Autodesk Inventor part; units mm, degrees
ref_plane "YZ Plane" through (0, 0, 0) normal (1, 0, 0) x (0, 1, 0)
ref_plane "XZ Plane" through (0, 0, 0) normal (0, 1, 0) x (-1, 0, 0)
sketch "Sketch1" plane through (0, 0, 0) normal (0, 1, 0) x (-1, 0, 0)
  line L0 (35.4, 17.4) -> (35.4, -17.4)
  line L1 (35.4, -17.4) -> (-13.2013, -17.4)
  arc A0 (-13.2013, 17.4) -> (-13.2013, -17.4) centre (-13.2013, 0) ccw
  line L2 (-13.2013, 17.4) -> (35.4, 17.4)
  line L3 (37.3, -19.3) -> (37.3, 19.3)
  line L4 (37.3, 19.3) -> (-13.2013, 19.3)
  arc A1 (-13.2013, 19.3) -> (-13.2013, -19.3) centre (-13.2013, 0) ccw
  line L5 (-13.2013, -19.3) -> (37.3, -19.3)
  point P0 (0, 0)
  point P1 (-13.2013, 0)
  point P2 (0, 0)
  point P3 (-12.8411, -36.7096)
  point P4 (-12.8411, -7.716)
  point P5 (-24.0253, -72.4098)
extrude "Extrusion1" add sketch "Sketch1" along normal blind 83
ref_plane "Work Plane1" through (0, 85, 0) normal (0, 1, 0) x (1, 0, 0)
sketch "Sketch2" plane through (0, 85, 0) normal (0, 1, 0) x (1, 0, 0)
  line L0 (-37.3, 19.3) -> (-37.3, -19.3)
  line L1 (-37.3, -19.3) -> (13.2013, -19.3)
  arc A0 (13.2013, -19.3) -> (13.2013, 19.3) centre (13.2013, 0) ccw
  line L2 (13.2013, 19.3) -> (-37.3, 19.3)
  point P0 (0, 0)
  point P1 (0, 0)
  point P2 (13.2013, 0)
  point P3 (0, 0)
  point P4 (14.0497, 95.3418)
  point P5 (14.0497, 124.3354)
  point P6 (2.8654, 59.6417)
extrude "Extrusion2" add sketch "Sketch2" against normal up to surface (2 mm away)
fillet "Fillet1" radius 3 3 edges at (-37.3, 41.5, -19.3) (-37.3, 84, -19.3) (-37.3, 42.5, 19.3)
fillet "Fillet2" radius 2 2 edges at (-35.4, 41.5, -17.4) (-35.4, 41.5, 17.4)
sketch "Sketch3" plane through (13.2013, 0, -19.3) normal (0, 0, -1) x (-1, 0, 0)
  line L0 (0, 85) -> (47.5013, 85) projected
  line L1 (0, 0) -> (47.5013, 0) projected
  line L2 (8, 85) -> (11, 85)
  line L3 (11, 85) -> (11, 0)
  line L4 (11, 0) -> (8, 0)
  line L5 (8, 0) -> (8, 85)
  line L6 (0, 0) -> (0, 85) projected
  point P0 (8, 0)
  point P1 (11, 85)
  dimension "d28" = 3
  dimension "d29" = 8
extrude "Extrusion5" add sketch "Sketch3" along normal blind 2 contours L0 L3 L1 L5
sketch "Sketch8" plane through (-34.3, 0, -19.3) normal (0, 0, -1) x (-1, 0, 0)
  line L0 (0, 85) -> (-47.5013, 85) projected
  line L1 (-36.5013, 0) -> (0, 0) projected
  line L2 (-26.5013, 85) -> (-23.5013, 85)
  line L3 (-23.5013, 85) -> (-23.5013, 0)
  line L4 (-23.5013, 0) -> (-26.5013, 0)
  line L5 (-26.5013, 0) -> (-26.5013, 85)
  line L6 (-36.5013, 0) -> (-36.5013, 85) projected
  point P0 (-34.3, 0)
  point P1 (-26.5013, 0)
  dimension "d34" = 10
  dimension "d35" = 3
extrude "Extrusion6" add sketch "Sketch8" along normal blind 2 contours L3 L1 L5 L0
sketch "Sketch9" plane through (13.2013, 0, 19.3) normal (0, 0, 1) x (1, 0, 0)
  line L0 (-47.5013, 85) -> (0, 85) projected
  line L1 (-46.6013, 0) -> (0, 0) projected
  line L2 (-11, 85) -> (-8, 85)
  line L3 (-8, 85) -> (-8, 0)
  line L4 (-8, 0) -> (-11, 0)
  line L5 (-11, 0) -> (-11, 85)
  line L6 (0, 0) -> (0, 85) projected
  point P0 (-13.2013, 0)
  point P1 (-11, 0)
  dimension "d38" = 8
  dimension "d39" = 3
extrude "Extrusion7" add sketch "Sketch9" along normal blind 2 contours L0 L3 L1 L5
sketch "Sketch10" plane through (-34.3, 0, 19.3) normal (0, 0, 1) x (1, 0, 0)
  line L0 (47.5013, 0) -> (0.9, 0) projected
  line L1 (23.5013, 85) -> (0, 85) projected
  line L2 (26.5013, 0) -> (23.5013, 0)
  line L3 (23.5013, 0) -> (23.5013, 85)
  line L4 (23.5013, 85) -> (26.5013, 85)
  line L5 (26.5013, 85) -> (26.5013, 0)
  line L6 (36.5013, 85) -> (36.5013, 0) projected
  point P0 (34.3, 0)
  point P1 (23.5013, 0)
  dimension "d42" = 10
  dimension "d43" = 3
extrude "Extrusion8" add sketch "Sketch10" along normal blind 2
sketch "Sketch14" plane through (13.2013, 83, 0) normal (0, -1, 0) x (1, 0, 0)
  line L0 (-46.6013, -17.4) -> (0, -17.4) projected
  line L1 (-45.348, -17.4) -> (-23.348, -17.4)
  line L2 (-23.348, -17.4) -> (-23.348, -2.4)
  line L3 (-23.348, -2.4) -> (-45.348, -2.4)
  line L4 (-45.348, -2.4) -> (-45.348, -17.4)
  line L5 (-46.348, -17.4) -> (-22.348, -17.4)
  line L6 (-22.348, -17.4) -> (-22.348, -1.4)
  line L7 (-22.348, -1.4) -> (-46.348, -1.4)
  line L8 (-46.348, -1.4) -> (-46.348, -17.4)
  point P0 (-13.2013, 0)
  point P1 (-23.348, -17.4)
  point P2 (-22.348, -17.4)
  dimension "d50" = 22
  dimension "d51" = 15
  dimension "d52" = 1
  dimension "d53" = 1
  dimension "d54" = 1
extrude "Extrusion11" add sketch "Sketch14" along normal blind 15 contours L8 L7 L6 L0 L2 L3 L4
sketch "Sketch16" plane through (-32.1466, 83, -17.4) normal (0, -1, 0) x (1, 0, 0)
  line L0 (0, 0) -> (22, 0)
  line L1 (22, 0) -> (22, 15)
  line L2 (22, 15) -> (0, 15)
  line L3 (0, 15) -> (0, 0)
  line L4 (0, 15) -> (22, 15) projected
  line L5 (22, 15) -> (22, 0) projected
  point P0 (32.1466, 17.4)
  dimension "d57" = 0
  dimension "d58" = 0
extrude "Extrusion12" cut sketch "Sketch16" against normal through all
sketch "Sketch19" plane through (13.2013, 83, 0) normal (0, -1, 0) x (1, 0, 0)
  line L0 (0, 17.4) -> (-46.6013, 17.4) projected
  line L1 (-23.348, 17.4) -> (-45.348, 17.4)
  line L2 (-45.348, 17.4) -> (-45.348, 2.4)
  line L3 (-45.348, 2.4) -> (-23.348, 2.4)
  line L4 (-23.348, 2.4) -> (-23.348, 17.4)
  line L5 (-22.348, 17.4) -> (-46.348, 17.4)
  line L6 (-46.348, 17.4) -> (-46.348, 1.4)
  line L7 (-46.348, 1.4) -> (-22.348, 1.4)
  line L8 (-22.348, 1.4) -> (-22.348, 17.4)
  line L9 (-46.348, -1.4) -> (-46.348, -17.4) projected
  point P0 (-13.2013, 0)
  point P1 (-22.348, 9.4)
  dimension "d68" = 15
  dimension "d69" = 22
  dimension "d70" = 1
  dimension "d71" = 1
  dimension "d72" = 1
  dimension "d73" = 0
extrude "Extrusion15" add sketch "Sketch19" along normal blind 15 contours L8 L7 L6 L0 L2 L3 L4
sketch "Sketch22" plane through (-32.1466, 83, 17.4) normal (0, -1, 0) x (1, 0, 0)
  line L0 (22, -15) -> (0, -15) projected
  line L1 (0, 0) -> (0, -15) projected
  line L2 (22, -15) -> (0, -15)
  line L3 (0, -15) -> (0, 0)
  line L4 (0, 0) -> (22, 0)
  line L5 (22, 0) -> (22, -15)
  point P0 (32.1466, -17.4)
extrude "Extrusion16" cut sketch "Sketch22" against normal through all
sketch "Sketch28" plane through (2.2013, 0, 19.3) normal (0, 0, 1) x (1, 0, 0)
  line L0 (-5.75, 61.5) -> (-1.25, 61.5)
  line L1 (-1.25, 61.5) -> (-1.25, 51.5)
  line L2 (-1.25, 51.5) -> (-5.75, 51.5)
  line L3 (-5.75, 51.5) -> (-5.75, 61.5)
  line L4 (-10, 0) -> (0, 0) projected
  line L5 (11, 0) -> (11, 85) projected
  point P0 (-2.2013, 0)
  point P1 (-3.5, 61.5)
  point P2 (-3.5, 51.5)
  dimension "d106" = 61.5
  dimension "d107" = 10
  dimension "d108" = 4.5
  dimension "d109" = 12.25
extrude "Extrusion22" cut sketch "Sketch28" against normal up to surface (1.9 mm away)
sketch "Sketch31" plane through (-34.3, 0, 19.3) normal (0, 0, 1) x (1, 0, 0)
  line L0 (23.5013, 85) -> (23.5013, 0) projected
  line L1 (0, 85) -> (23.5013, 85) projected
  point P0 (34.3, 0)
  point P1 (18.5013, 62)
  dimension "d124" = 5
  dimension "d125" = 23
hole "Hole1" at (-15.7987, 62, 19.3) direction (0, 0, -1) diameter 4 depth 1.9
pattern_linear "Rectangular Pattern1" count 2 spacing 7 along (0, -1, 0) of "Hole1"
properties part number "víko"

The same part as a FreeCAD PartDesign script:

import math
import FreeCAD as App
import Part
import Sketcher
from FreeCAD import Vector


def edges_at(feature, points):
    """Names of the edges that pass closest to the given points."""
    edges = feature.Shape.Edges
    near = lambda p: min(range(len(edges)), key=lambda i: edges[i].distToShape(Part.Vertex(*p))[0])
    return sorted({f"Edge{near(p) + 1}" for p in points})


def add_polygon(sketch, points):
    """Adds a closed chain of lines whose ends are joined by coincident constraints."""
    first, n = sketch.GeometryCount, len(points)
    for a, b in zip(points, points[1:] + points[:1]):
        sketch.addGeometry(Part.LineSegment(App.Vector(*a, 0), App.Vector(*b, 0)), False)
    for i in range(n):
        sketch.addConstraint(Sketcher.Constraint("Coincident", first + i, 2, first + (i + 1) % n, 1))

doc = App.newDocument("Part")
body = doc.addObject("PartDesign::Body", "Body")

sketch1 = body.newObject("Sketcher::SketchObject", "Sketch")
sketch1.AttachmentSupport = (doc.getObject("XZ_Plane"), [""])
sketch1.MapMode = "FlatFace"
sketch1.addGeometry([
    Part.LineSegment(Vector(13.2013, -19.3, 0), Vector(-37.3, -19.3, 0)),
    Part.LineSegment(Vector(-37.3, -19.3, 0), Vector(-37.3, 19.3, 0)),
    Part.LineSegment(Vector(-37.3, 19.3, 0), Vector(13.2013, 19.3, 0)),
    Part.ArcOfCircle(Part.Circle(Vector(13.2013, 0, 0), Vector(0, 0, 1), 19.3), math.radians(-90), math.radians(90)),
    Part.LineSegment(Vector(13.2013, 17.4, 0), Vector(-35.4, 17.4, 0)),
    Part.LineSegment(Vector(-35.4, 17.4, 0), Vector(-35.4, -17.4, 0)),
    Part.LineSegment(Vector(-35.4, -17.4, 0), Vector(13.2013, -17.4, 0)),
    Part.ArcOfCircle(Part.Circle(Vector(13.2013, 0, 0), Vector(0, 0, 1), 17.4), math.radians(-90), math.radians(90)),
], False)
sketch1.addConstraint([
    Sketcher.Constraint("Coincident", 0, 2, 1, 1),
    Sketcher.Constraint("Coincident", 1, 2, 2, 1),
    Sketcher.Constraint("Tangent", 2, 2, 3, 2),
    Sketcher.Constraint("Tangent", 3, 1, 0, 1),
    Sketcher.Constraint("Coincident", 4, 2, 5, 1),
    Sketcher.Constraint("Coincident", 5, 2, 6, 1),
    Sketcher.Constraint("Tangent", 6, 2, 7, 1),
    Sketcher.Constraint("Tangent", 7, 2, 4, 1),
    Sketcher.Constraint("Horizontal", 0),
    Sketcher.Constraint("Vertical", 1),
    Sketcher.Constraint("Horizontal", 2),
    Sketcher.Constraint("Horizontal", 4),
    Sketcher.Constraint("Vertical", 5),
    Sketcher.Constraint("Horizontal", 6),
    Sketcher.Constraint("Coincident", 7, 3, 3, 3),
    Sketcher.Constraint("PointOnObject", 3, 3, -1),
    Sketcher.Constraint("Radius", 3, 19.3),
    Sketcher.Constraint("Radius", 7, 17.4),
    Sketcher.Constraint("DistanceX", 0, 2, -1, 1, 37.3),
    Sketcher.Constraint("DistanceX", 4, 2, -1, 1, 35.4),
    Sketcher.Constraint("DistanceX", 0, 2, 0, 1, 50.5013),
])
pad1 = body.newObject("PartDesign::Pad", "Pad")
pad1.Profile = sketch1
pad1.Length = 83
pad1.Reversed = True

sketch2 = body.newObject("Sketcher::SketchObject", "Sketch001")
sketch2.AttachmentSupport = (doc.getObject("XZ_Plane"), [""])
sketch2.MapMode = "FlatFace"
sketch2.AttachmentOffset = App.Placement(Vector(0, 0, -85), App.Rotation())
sketch2.addGeometry([
    Part.LineSegment(Vector(13.2013, -19.3, 0), Vector(-37.3, -19.3, 0)),
    Part.LineSegment(Vector(-37.3, -19.3, 0), Vector(-37.3, 19.3, 0)),
    Part.LineSegment(Vector(-37.3, 19.3, 0), Vector(13.2013, 19.3, 0)),
    Part.ArcOfCircle(Part.Circle(Vector(13.2013, 0, 0), Vector(0, 0, 1), 19.3), math.radians(-90), math.radians(90)),
], False)
sketch2.addConstraint([
    Sketcher.Constraint("Coincident", 0, 2, 1, 1),
    Sketcher.Constraint("Coincident", 1, 2, 2, 1),
    Sketcher.Constraint("Tangent", 2, 2, 3, 2),
    Sketcher.Constraint("Tangent", 3, 1, 0, 1),
    Sketcher.Constraint("Horizontal", 0),
    Sketcher.Constraint("Vertical", 1),
    Sketcher.Constraint("Horizontal", 2),
    Sketcher.Constraint("PointOnObject", 3, 3, -1),
    Sketcher.Constraint("Radius", 3, 19.3),
    Sketcher.Constraint("DistanceX", 0, 2, -1, 1, 37.3),
    Sketcher.Constraint("DistanceX", 0, 2, 0, 1, 50.5013),
])
pad2 = body.newObject("PartDesign::Pad", "Pad001")
pad2.Profile = sketch2
pad2.Length = 2
doc.recompute()

fillet = body.newObject("PartDesign::Fillet", "Fillet")
fillet.Base = (pad2, edges_at(pad2, [(-37.3, 41.5, -19.3), (-37.3, 84, -19.3), (-37.3, 42.5, 19.3)]))
fillet.Radius = 3
doc.recompute()

fillet2 = body.newObject("PartDesign::Fillet", "Fillet001")
fillet2.Base = (fillet, edges_at(fillet, [(-35.4, 41.5, -17.4), (-35.4, 41.5, 17.4)]))
fillet2.Radius = 2

sketch3 = body.newObject("Sketcher::SketchObject", "Sketch002")
sketch3.AttachmentSupport = (doc.getObject("XY_Plane"), [""])
sketch3.MapMode = "FlatFace"
sketch3.AttachmentOffset = App.Placement(Vector(0, 0, -19.3), App.Rotation())
add_polygon(sketch3, [(2.2013, 85), (5.2013, 85), (5.2013, 0), (2.2013, 0)])
sketch3.addConstraint([
    Sketcher.Constraint("Horizontal", 0),
    Sketcher.Constraint("Vertical", 1),
    Sketcher.Constraint("Horizontal", 2),
    Sketcher.Constraint("Vertical", 3),
    Sketcher.Constraint("PointOnObject", 1, 2, -1),
    Sketcher.Constraint("DistanceX", 0, 1, 0, 2, 3.0),
    Sketcher.Constraint("DistanceY", 1, 2, 1, 1, 85.0),
    Sketcher.Constraint("DistanceX", -1, 1, 0, 2, 5.2013),
])
pad3 = body.newObject("PartDesign::Pad", "Pad002")
pad3.Profile = sketch3
pad3.Length = 2
pad3.Reversed = True

sketch4 = body.newObject("Sketcher::SketchObject", "Sketch003")
sketch4.AttachmentSupport = (doc.getObject("XY_Plane"), [""])
sketch4.MapMode = "FlatFace"
sketch4.AttachmentOffset = App.Placement(Vector(0, 0, -19.3), App.Rotation())
add_polygon(sketch4, [(-10.7987, 0), (-10.7987, 85), (-7.7987, 85), (-7.7987, 0)])
sketch4.addConstraint([
    Sketcher.Constraint("Vertical", 0),
    Sketcher.Constraint("Horizontal", 1),
    Sketcher.Constraint("Vertical", 2),
    Sketcher.Constraint("Horizontal", 3),
    Sketcher.Constraint("PointOnObject", 2, 2, -1),
    Sketcher.Constraint("DistanceX", 1, 1, 1, 2, 3.0),
    Sketcher.Constraint("DistanceY", 0, 1, 0, 2, 85.0),
    Sketcher.Constraint("DistanceX", 0, 2, -1, 1, 10.7987),
])
pad4 = body.newObject("PartDesign::Pad", "Pad003")
pad4.Profile = sketch4
pad4.Length = 2
pad4.Reversed = True

sketch5 = body.newObject("Sketcher::SketchObject", "Sketch004")
sketch5.AttachmentSupport = (doc.getObject("XY_Plane"), [""])
sketch5.MapMode = "FlatFace"
sketch5.AttachmentOffset = App.Placement(Vector(0, 0, 19.3), App.Rotation())
add_polygon(sketch5, [(5.2013, 85), (2.2013, 85), (2.2013, 0), (5.2013, 0)])
sketch5.addConstraint([
    Sketcher.Constraint("Horizontal", 0),
    Sketcher.Constraint("Vertical", 1),
    Sketcher.Constraint("Horizontal", 2),
    Sketcher.Constraint("Vertical", 3),
    Sketcher.Constraint("PointOnObject", 1, 2, -1),
    Sketcher.Constraint("DistanceX", 0, 2, 0, 1, 3.0),
    Sketcher.Constraint("DistanceY", 1, 2, 1, 1, 85.0),
    Sketcher.Constraint("DistanceX", -1, 1, 0, 2, 2.2013),
])
pad5 = body.newObject("PartDesign::Pad", "Pad004")
pad5.Profile = sketch5
pad5.Length = 2

sketch6 = body.newObject("Sketcher::SketchObject", "Sketch005")
sketch6.AttachmentSupport = (doc.getObject("XY_Plane"), [""])
sketch6.MapMode = "FlatFace"
sketch6.AttachmentOffset = App.Placement(Vector(0, 0, 19.3), App.Rotation())
add_polygon(sketch6, [(-10.7987, 0), (-7.7987, 0), (-7.7987, 85), (-10.7987, 85)])
sketch6.addConstraint([
    Sketcher.Constraint("Horizontal", 0),
    Sketcher.Constraint("Vertical", 1),
    Sketcher.Constraint("Horizontal", 2),
    Sketcher.Constraint("Vertical", 3),
    Sketcher.Constraint("PointOnObject", 0, 2, -1),
    Sketcher.Constraint("DistanceX", 0, 1, 0, 2, 3.0),
    Sketcher.Constraint("DistanceY", 1, 1, 1, 2, 85.0),
    Sketcher.Constraint("DistanceX", 0, 2, -1, 1, 7.7987),
])
pad6 = body.newObject("PartDesign::Pad", "Pad005")
pad6.Profile = sketch6
pad6.Length = 2

sketch7 = body.newObject("Sketcher::SketchObject", "Sketch006")
sketch7.AttachmentSupport = (doc.getObject("XZ_Plane"), [""])
sketch7.MapMode = "FlatFace"
sketch7.AttachmentOffset = App.Placement(Vector(0, 0, -83), App.Rotation())
add_polygon(sketch7, [(-33.1467, -1.4), (-33.1467, -17.4), (-32.1467, -17.4), (-32.1467, -2.4), (-10.1467, -2.4), (-10.1467, -17.4), (-9.1467, -17.4), (-9.1467, -1.4)])
sketch7.addConstraint([
    Sketcher.Constraint("Vertical", 0),
    Sketcher.Constraint("Horizontal", 1),
    Sketcher.Constraint("Vertical", 2),
    Sketcher.Constraint("Horizontal", 3),
    Sketcher.Constraint("Vertical", 4),
    Sketcher.Constraint("Horizontal", 5),
    Sketcher.Constraint("Vertical", 6),
    Sketcher.Constraint("Horizontal", 7),
    Sketcher.Constraint("Horizontal", 1, 2, 4, 2),
    Sketcher.Constraint("Equal", 1, 5),
    Sketcher.Constraint("DistanceX", 1, 1, 1, 2, 1.0),
    Sketcher.Constraint("DistanceX", 3, 1, 3, 2, 22.0),
    Sketcher.Constraint("DistanceY", 2, 1, 2, 2, 15.0),
    Sketcher.Constraint("DistanceY", 3, 2, 6, 2, 1.0),
    Sketcher.Constraint("DistanceY", 0, 2, -1, 1, 17.4),
    Sketcher.Constraint("DistanceX", 0, 2, -1, 1, 33.1467),
])
pad7 = body.newObject("PartDesign::Pad", "Pad006")
pad7.Profile = sketch7
pad7.Length = 15

sketch8 = body.newObject("Sketcher::SketchObject", "Sketch007")
sketch8.AttachmentSupport = (doc.getObject("XZ_Plane"), [""])
sketch8.MapMode = "FlatFace"
sketch8.AttachmentOffset = App.Placement(Vector(0, 0, -83), App.Rotation())
add_polygon(sketch8, [(-32.1466, -2.4), (-32.1466, -17.4), (-10.1466, -17.4), (-10.1466, -2.4)])
sketch8.addConstraint([
    Sketcher.Constraint("Vertical", 0),
    Sketcher.Constraint("Horizontal", 1),
    Sketcher.Constraint("Vertical", 2),
    Sketcher.Constraint("Horizontal", 3),
    Sketcher.Constraint("DistanceX", 1, 1, 1, 2, 22.0),
    Sketcher.Constraint("DistanceY", 0, 2, 0, 1, 15.0),
    Sketcher.Constraint("DistanceY", 0, 2, -1, 1, 17.4),
    Sketcher.Constraint("DistanceX", 0, 2, -1, 1, 32.1466),
])
pocket1 = body.newObject("PartDesign::Pocket", "Pocket")
pocket1.Profile = sketch8
pocket1.Type = "ThroughAll"

sketch9 = body.newObject("Sketcher::SketchObject", "Sketch008")
sketch9.AttachmentSupport = (doc.getObject("XZ_Plane"), [""])
sketch9.MapMode = "FlatFace"
sketch9.AttachmentOffset = App.Placement(Vector(0, 0, -83), App.Rotation())
add_polygon(sketch9, [(-9.1467, 1.4), (-9.1467, 17.4), (-10.1467, 17.4), (-10.1467, 2.4), (-32.1467, 2.4), (-32.1467, 17.4), (-33.1467, 17.4), (-33.1467, 1.4)])
sketch9.addConstraint([
    Sketcher.Constraint("Vertical", 0),
    Sketcher.Constraint("Horizontal", 1),
    Sketcher.Constraint("Vertical", 2),
    Sketcher.Constraint("Horizontal", 3),
    Sketcher.Constraint("Vertical", 4),
    Sketcher.Constraint("Horizontal", 5),
    Sketcher.Constraint("Vertical", 6),
    Sketcher.Constraint("Horizontal", 7),
    Sketcher.Constraint("Horizontal", 1, 2, 4, 2),
    Sketcher.Constraint("Equal", 1, 5),
    Sketcher.Constraint("DistanceX", 1, 2, 1, 1, 1.0),
    Sketcher.Constraint("DistanceX", 3, 2, 3, 1, 22.0),
    Sketcher.Constraint("DistanceY", 2, 2, 2, 1, 15.0),
    Sketcher.Constraint("DistanceY", 6, 2, 3, 2, 1.0),
    Sketcher.Constraint("DistanceY", -1, 1, 0, 2, 17.4),
    Sketcher.Constraint("DistanceX", 0, 2, -1, 1, 9.1467),
])
pad8 = body.newObject("PartDesign::Pad", "Pad007")
pad8.Profile = sketch9
pad8.Length = 15

sketch10 = body.newObject("Sketcher::SketchObject", "Sketch009")
sketch10.AttachmentSupport = (doc.getObject("XZ_Plane"), [""])
sketch10.MapMode = "FlatFace"
sketch10.AttachmentOffset = App.Placement(Vector(0, 0, -83), App.Rotation())
add_polygon(sketch10, [(-32.1466, 2.4), (-10.1466, 2.4), (-10.1466, 17.4), (-32.1466, 17.4)])
sketch10.addConstraint([
    Sketcher.Constraint("Horizontal", 0),
    Sketcher.Constraint("Vertical", 1),
    Sketcher.Constraint("Horizontal", 2),
    Sketcher.Constraint("Vertical", 3),
    Sketcher.Constraint("DistanceX", 0, 1, 0, 2, 22.0),
    Sketcher.Constraint("DistanceY", 1, 1, 1, 2, 15.0),
    Sketcher.Constraint("DistanceY", -1, 1, 0, 2, 2.4),
    Sketcher.Constraint("DistanceX", 0, 2, -1, 1, 10.1466),
])
pocket2 = body.newObject("PartDesign::Pocket", "Pocket001")
pocket2.Profile = sketch10
pocket2.Type = "ThroughAll"

sketch11 = body.newObject("Sketcher::SketchObject", "Sketch010")
sketch11.AttachmentSupport = (doc.getObject("XY_Plane"), [""])
sketch11.MapMode = "FlatFace"
sketch11.AttachmentOffset = App.Placement(Vector(0, 0, 19.3), App.Rotation())
add_polygon(sketch11, [(0.9513, 61.5), (-3.5487, 61.5), (-3.5487, 51.5), (0.9513, 51.5)])
sketch11.addConstraint([
    Sketcher.Constraint("Horizontal", 0),
    Sketcher.Constraint("Vertical", 1),
    Sketcher.Constraint("Horizontal", 2),
    Sketcher.Constraint("Vertical", 3),
    Sketcher.Constraint("DistanceY", 1, 2, 1, 1, 10.0),
    Sketcher.Constraint("DistanceX", 0, 2, 0, 1, 4.5),
    Sketcher.Constraint("DistanceY", -1, 1, 0, 2, 61.5),
    Sketcher.Constraint("DistanceX", 0, 2, -1, 1, 3.5487),
])
pocket3 = body.newObject("PartDesign::Pocket", "Pocket002")
pocket3.Profile = sketch11
pocket3.Length = 1.9

sketch12 = body.newObject("Sketcher::SketchObject", "Sketch011")
sketch12.AttachmentSupport = (doc.getObject("XY_Plane"), [""])
sketch12.MapMode = "FlatFace"
sketch12.AttachmentOffset = App.Placement(Vector(0, 0, 19.3), App.Rotation())
sketch12.addGeometry(Part.Circle(Vector(-15.7987, 62, 0), Vector(0, 0, 1), 2), False)
sketch12.addConstraint([
    Sketcher.Constraint("Diameter", 0, 4.0),
    Sketcher.Constraint("DistanceY", -1, 1, 0, 3, 62.0),
    Sketcher.Constraint("DistanceX", 0, 3, -1, 1, 15.7987),
])
doc.recompute()
hole = body.newObject("PartDesign::Hole", "Hole")
hole.Profile = sketch12
hole.ThreadType = "None"
hole.Diameter = 4
hole.DepthType = "Dimension"
hole.Depth = 1.9
hole.DrillPoint = "Flat"
doc.recompute()

linearpattern = body.newObject("PartDesign::LinearPattern", "LinearPattern")
linearpattern.Originals = [hole]
linearpattern.Direction = (doc.getObject("Y_Axis"), [""])
linearpattern.Mode = "offset"
linearpattern.Offset = 7
linearpattern.Occurrences = 2
linearpattern.Reversed = True
body.Tip = linearpattern

doc.recompute()
